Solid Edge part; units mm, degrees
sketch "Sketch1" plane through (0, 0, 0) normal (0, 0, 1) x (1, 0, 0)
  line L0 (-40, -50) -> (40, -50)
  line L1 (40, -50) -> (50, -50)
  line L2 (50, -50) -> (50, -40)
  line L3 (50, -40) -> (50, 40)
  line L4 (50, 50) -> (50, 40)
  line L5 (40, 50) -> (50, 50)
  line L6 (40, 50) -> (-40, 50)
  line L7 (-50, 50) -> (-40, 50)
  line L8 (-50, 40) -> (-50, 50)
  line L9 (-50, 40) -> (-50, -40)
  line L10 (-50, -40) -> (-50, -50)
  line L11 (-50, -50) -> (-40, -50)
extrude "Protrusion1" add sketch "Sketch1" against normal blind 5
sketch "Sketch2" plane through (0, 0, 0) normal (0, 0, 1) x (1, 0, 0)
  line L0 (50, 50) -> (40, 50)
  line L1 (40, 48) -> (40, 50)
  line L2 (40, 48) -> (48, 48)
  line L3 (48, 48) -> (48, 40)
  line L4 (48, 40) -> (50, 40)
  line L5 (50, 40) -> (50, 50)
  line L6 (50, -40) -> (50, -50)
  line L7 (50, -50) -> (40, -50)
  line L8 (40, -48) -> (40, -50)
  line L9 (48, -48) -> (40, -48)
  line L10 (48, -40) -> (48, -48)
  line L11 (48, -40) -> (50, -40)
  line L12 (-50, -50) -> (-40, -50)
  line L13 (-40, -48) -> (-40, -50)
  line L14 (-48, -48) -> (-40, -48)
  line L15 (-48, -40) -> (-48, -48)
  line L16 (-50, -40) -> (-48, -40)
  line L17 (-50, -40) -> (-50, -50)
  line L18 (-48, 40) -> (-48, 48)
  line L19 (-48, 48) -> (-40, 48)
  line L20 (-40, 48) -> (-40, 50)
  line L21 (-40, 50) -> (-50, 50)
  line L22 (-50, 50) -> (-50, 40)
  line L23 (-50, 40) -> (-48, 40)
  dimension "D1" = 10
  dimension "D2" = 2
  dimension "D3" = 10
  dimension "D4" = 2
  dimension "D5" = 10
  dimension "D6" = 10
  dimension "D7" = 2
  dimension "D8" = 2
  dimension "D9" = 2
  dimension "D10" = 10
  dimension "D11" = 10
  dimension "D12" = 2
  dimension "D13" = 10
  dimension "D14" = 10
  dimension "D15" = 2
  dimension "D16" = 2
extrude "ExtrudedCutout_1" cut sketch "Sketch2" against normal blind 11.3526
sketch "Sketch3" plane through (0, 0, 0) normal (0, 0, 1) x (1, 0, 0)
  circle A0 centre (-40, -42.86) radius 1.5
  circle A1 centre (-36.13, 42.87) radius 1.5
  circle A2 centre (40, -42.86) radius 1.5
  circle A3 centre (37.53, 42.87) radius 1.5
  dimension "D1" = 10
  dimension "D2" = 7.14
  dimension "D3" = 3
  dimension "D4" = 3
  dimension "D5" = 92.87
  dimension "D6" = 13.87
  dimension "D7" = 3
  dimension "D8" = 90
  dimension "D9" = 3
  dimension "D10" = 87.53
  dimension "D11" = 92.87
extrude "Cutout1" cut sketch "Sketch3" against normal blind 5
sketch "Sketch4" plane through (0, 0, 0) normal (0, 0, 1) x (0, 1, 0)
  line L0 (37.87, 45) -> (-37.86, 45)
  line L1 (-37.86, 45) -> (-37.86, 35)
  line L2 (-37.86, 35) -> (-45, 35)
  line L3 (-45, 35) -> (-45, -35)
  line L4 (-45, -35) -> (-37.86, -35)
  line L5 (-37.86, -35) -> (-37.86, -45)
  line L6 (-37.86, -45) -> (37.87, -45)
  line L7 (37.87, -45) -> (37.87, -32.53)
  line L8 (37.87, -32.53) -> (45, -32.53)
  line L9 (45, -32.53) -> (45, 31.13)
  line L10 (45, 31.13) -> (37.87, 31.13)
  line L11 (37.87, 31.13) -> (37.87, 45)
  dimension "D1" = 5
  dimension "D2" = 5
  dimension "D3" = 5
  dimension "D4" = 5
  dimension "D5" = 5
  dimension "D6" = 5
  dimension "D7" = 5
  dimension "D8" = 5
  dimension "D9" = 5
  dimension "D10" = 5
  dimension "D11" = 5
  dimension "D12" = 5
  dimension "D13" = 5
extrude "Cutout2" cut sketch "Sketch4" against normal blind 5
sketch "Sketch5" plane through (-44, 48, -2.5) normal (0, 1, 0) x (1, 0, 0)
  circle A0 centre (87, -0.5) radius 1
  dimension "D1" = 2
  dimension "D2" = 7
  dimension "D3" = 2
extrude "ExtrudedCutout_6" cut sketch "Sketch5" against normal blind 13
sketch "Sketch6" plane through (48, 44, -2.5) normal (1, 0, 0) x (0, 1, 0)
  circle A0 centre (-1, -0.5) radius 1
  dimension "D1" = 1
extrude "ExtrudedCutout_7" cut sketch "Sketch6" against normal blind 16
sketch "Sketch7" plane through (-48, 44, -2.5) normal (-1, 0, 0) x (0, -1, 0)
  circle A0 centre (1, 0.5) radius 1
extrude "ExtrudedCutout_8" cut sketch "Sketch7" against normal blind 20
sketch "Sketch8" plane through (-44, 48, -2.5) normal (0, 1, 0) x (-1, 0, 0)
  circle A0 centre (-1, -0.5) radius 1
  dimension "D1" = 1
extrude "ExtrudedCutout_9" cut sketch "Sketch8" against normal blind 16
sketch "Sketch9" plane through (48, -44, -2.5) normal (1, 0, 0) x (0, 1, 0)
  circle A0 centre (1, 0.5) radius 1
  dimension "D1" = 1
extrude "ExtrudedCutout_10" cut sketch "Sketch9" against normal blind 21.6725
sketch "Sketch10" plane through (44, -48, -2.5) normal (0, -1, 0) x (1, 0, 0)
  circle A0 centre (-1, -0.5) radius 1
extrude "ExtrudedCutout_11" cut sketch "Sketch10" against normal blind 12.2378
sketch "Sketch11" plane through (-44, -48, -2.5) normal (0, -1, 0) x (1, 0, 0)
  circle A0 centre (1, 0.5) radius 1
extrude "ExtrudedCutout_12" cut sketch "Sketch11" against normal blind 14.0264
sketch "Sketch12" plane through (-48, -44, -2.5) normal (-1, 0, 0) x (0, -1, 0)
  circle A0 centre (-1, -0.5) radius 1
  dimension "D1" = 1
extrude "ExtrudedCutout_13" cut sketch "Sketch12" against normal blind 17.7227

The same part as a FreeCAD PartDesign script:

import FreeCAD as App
import Part
import Sketcher

V = App.Vector

doc = App.newDocument("Part")
body = doc.addObject("PartDesign::Body", "Body")

sketch1 = doc.addObject("Sketcher::SketchObject", "Sketch")
body.addObject(sketch1)
sketch1.AttachmentSupport = (doc.XY_Plane, [""])
sketch1.MapMode = "FlatFace"
sketch1.addGeometry([
    Part.LineSegment(V(-50, -50, 0), V(50, -50, 0)),
    Part.LineSegment(V(50, -50, 0), V(50, 50, 0)),
    Part.LineSegment(V(50, 50, 0), V(-50, 50, 0)),
    Part.LineSegment(V(-50, 50, 0), V(-50, -50, 0)),
], False)
sketch1.addConstraint([
    Sketcher.Constraint("Coincident", 0, 2, 1, 1),
    Sketcher.Constraint("Coincident", 1, 2, 2, 1),
    Sketcher.Constraint("Coincident", 2, 2, 3, 1),
    Sketcher.Constraint("Coincident", 3, 2, 0, 1),
    Sketcher.Constraint("Horizontal", 0),
    Sketcher.Constraint("Vertical", 1),
    Sketcher.Constraint("Horizontal", 2),
    Sketcher.Constraint("Vertical", 3),
    Sketcher.Constraint("Symmetric", 0, 2, 2, 2, -1, 1),
    Sketcher.Constraint("Equal", 2, 1),
    Sketcher.Constraint("DistanceX", 0, 1, 0, 2, 100.0),
])
pad1 = doc.addObject("PartDesign::Pad", "Pad")
body.addObject(pad1)
pad1.Profile = sketch1
pad1.Length = 5
pad1.Reversed = True

sketch2 = doc.addObject("Sketcher::SketchObject", "Sketch001")
body.addObject(sketch2)
sketch2.AttachmentSupport = (doc.XY_Plane, [""])
sketch2.MapMode = "FlatFace"
sketch2.addGeometry([
    Part.LineSegment(V(50, 40, 0), V(50, 50, 0)),
    Part.LineSegment(V(50, 50, 0), V(40, 50, 0)),
    Part.LineSegment(V(40, 50, 0), V(40, 48, 0)),
    Part.LineSegment(V(40, 48, 0), V(48, 48, 0)),
    Part.LineSegment(V(48, 48, 0), V(48, 40, 0)),
    Part.LineSegment(V(48, 40, 0), V(50, 40, 0)),
    Part.LineSegment(V(50, -50, 0), V(50, -40, 0)),
    Part.LineSegment(V(50, -40, 0), V(48, -40, 0)),
    Part.LineSegment(V(48, -40, 0), V(48, -48, 0)),
    Part.LineSegment(V(48, -48, 0), V(40, -48, 0)),
    Part.LineSegment(V(40, -48, 0), V(40, -50, 0)),
    Part.LineSegment(V(40, -50, 0), V(50, -50, 0)),
    Part.LineSegment(V(-50, -40, 0), V(-50, -50, 0)),
    Part.LineSegment(V(-50, -50, 0), V(-40, -50, 0)),
    Part.LineSegment(V(-40, -50, 0), V(-40, -48, 0)),
    Part.LineSegment(V(-40, -48, 0), V(-48, -48, 0)),
    Part.LineSegment(V(-48, -48, 0), V(-48, -40, 0)),
    Part.LineSegment(V(-48, -40, 0), V(-50, -40, 0)),
    Part.LineSegment(V(-50, 40, 0), V(-48, 40, 0)),
    Part.LineSegment(V(-48, 40, 0), V(-48, 48, 0)),
    Part.LineSegment(V(-48, 48, 0), V(-40, 48, 0)),
    Part.LineSegment(V(-40, 48, 0), V(-40, 50, 0)),
    Part.LineSegment(V(-40, 50, 0), V(-50, 50, 0)),
    Part.LineSegment(V(-50, 50, 0), V(-50, 40, 0)),
], False)
sketch2.addConstraint([
    Sketcher.Constraint("Coincident", 0, 2, 1, 1),
    Sketcher.Constraint("Coincident", 1, 2, 2, 1),
    Sketcher.Constraint("Coincident", 2, 2, 3, 1),
    Sketcher.Constraint("Coincident", 3, 2, 4, 1),
    Sketcher.Constraint("Coincident", 4, 2, 5, 1),
    Sketcher.Constraint("Coincident", 5, 2, 0, 1),
    Sketcher.Constraint("Coincident", 6, 2, 7, 1),
    Sketcher.Constraint("Coincident", 7, 2, 8, 1),
    Sketcher.Constraint("Coincident", 8, 2, 9, 1),
    Sketcher.Constraint("Coincident", 9, 2, 10, 1),
    Sketcher.Constraint("Coincident", 10, 2, 11, 1),
    Sketcher.Constraint("Coincident", 11, 2, 6, 1),
    Sketcher.Constraint("Coincident", 12, 2, 13, 1),
    Sketcher.Constraint("Coincident", 13, 2, 14, 1),
    Sketcher.Constraint("Coincident", 14, 2, 15, 1),
    Sketcher.Constraint("Coincident", 15, 2, 16, 1),
    Sketcher.Constraint("Coincident", 16, 2, 17, 1),
    Sketcher.Constraint("Coincident", 17, 2, 12, 1),
    Sketcher.Constraint("Coincident", 18, 2, 19, 1),
    Sketcher.Constraint("Coincident", 19, 2, 20, 1),
    Sketcher.Constraint("Coincident", 20, 2, 21, 1),
    Sketcher.Constraint("Coincident", 21, 2, 22, 1),
    Sketcher.Constraint("Coincident", 22, 2, 23, 1),
    Sketcher.Constraint("Coincident", 23, 2, 18, 1),
    Sketcher.Constraint("Vertical", 0),
    Sketcher.Constraint("Horizontal", 1),
    Sketcher.Constraint("Vertical", 2),
    Sketcher.Constraint("Horizontal", 3),
    Sketcher.Constraint("Vertical", 4),
    Sketcher.Constraint("Horizontal", 5),
    Sketcher.Constraint("Vertical", 6),
    Sketcher.Constraint("Horizontal", 7),
    Sketcher.Constraint("Vertical", 8),
    Sketcher.Constraint("Horizontal", 9),
    Sketcher.Constraint("Vertical", 10),
    Sketcher.Constraint("Horizontal", 11),
    Sketcher.Constraint("Vertical", 12),
    Sketcher.Constraint("Horizontal", 13),
    Sketcher.Constraint("Vertical", 14),
    Sketcher.Constraint("Horizontal", 15),
    Sketcher.Constraint("Vertical", 16),
    Sketcher.Constraint("Horizontal", 17),
    Sketcher.Constraint("Horizontal", 18),
    Sketcher.Constraint("Vertical", 19),
    Sketcher.Constraint("Horizontal", 20),
    Sketcher.Constraint("Vertical", 21),
    Sketcher.Constraint("Horizontal", 22),
    Sketcher.Constraint("Vertical", 23),
    Sketcher.Constraint("Symmetric", 0, 2, 12, 2, -1, 1),
    Sketcher.Constraint("Symmetric", 2, 2, 14, 2, -1, 1),
    Sketcher.Constraint("Symmetric", 4, 2, 16, 2, -1, 1),
    Sketcher.Constraint("Symmetric", 7, 2, 18, 2, -1, 1),
    Sketcher.Constraint("Symmetric", 9, 2, 20, 2, -1, 1),
    Sketcher.Constraint("Symmetric", 11, 2, 22, 2, -1, 1),
    Sketcher.Constraint("Symmetric", 11, 2, 12, 2, -2),
    Sketcher.Constraint("Symmetric", 9, 2, 14, 2, -2),
    Sketcher.Constraint("Symmetric", 7, 2, 16, 2, -2),
    Sketcher.Constraint("Equal", 22, 0),
    Sketcher.Constraint("Equal", 18, 2),
    Sketcher.Constraint("DistanceX", -1, 1, 0, 2, 50.0),
    Sketcher.Constraint("DistanceY", -1, 1, 0, 2, 50.0),
    Sketcher.Constraint("DistanceX", -1, 1, 1, 2, 40.0),
    Sketcher.Constraint("DistanceY", -1, 1, 2, 2, 48.0),
])
pocket1 = doc.addObject("PartDesign::Pocket", "Pocket")
body.addObject(pocket1)
pocket1.Profile = sketch2
pocket1.Length = 11.3526

sketch3 = doc.addObject("Sketcher::SketchObject", "Sketch002")
body.addObject(sketch3)
sketch3.AttachmentSupport = (doc.XY_Plane, [""])
sketch3.MapMode = "FlatFace"
sketch3.addGeometry([
    Part.Circle(V(-40, -42.9, 0), V(0, 0, 1), 1.5),
    Part.Circle(V(-36.1, 42.9, 0), V(0, 0, 1), 1.5),
    Part.Circle(V(40, -42.9, 0), V(0, 0, 1), 1.5),
    Part.Circle(V(37.5, 42.9, 0), V(0, 0, 1), 1.5),
], False)
sketch3.addConstraint([
    Sketcher.Constraint("Equal", 0, 1),
    Sketcher.Constraint("Equal", 1, 2),
    Sketcher.Constraint("Equal", 2, 3),
    Sketcher.Constraint("Symmetric", 0, 3, 2, 3, -2),
    Sketcher.Constraint("Horizontal", 1, 3, 3, 3),
    Sketcher.Constraint("Diameter", 0, 3.0),
    Sketcher.Constraint("DistanceX", 0, 3, -1, 1, 40.0),
    Sketcher.Constraint("DistanceY", 0, 3, -1, 1, 42.86),
    Sketcher.Constraint("DistanceX", 1, 3, -1, 1, 36.13),
    Sketcher.Constraint("DistanceY", -1, 1, 1, 3, 42.87),
    Sketcher.Constraint("DistanceX", -1, 1, 3, 3, 37.53),
])
pocket2 = doc.addObject("PartDesign::Pocket", "Pocket001")
body.addObject(pocket2)
pocket2.Profile = sketch3
pocket2.Length = 5

sketch4 = doc.addObject("Sketcher::SketchObject", "Sketch003")
body.addObject(sketch4)
sketch4.AttachmentSupport = (doc.XY_Plane, [""])
sketch4.MapMode = "FlatFace"
sketch4.addGeometry([
    Part.LineSegment(V(-31, 38, 0), V(-45, 38, 0)),
    Part.LineSegment(V(-45, 38, 0), V(-45, -38, 0)),
    Part.LineSegment(V(-45, -38, 0), V(-35, -38, 0)),
    Part.LineSegment(V(-35, -38, 0), V(-35, -45, 0)),
    Part.LineSegment(V(-35, -45, 0), V(35, -45, 0)),
    Part.LineSegment(V(35, -45, 0), V(35, -38, 0)),
    Part.LineSegment(V(35, -38, 0), V(45, -38, 0)),
    Part.LineSegment(V(45, -38, 0), V(45, 38, 0)),
    Part.LineSegment(V(45, 38, 0), V(33, 38, 0)),
    Part.LineSegment(V(33, 38, 0), V(33, 45, 0)),
    Part.LineSegment(V(33, 45, 0), V(-31, 45, 0)),
    Part.LineSegment(V(-31, 45, 0), V(-31, 38, 0)),
], False)
sketch4.addConstraint([
    Sketcher.Constraint("Coincident", 0, 2, 1, 1),
    Sketcher.Constraint("Coincident", 1, 2, 2, 1),
    Sketcher.Constraint("Coincident", 2, 2, 3, 1),
    Sketcher.Constraint("Coincident", 3, 2, 4, 1),
    Sketcher.Constraint("Coincident", 4, 2, 5, 1),
    Sketcher.Constraint("Coincident", 5, 2, 6, 1),
    Sketcher.Constraint("Coincident", 6, 2, 7, 1),
    Sketcher.Constraint("Coincident", 7, 2, 8, 1),
    Sketcher.Constraint("Coincident", 8, 2, 9, 1),
    Sketcher.Constraint("Coincident", 9, 2, 10, 1),
    Sketcher.Constraint("Coincident", 10, 2, 11, 1),
    Sketcher.Constraint("Coincident", 11, 2, 0, 1),
    Sketcher.Constraint("Horizontal", 0),
    Sketcher.Constraint("Vertical", 1),
    Sketcher.Constraint("Horizontal", 2),
    Sketcher.Constraint("Vertical", 3),
    Sketcher.Constraint("Horizontal", 4),
    Sketcher.Constraint("Vertical", 5),
    Sketcher.Constraint("Horizontal", 6),
    Sketcher.Constraint("Vertical", 7),
    Sketcher.Constraint("Horizontal", 8),
    Sketcher.Constraint("Vertical", 9),
    Sketcher.Constraint("Horizontal", 10),
    Sketcher.Constraint("Vertical", 11),
    Sketcher.Constraint("Symmetric", 2, 2, 5, 2, -2),
    Sketcher.Constraint("Symmetric", 0, 2, 7, 2, -2),
    Sketcher.Constraint("DistanceX", 2, 1, 2, 2, 10.0),
    Sketcher.Constraint("DistanceX", 4, 1, 4, 2, 70.0),
    Sketcher.Constraint("DistanceY", 3, 2, -1, 1, 45.0),
    Sketcher.Constraint("DistanceY", -1, 1, 9, 2, 45.0),
    Sketcher.Constraint("DistanceX", 0, 2, 0, 1, 13.87),
    Sketcher.Constraint("DistanceX", 8, 2, 8, 1, 12.47),
    Sketcher.Constraint("DistanceY", 1, 2, 1, 1, 75.73),
    Sketcher.Constraint("DistanceY", 3, 2, 3, 1, 7.14),
])
pocket3 = doc.addObject("PartDesign::Pocket", "Pocket002")
body.addObject(pocket3)
pocket3.Profile = sketch4
pocket3.Length = 5

sketch5 = doc.addObject("Sketcher::SketchObject", "Sketch004")
body.addObject(sketch5)
sketch5.AttachmentSupport = (doc.XZ_Plane, [""])
sketch5.MapMode = "FlatFace"
sketch5.AttachmentOffset = App.Placement(V(0, 0, -48), App.Rotation())
sketch5.addGeometry(Part.Circle(V(43, -2, 0), V(0, 0, 1), 1), False)
sketch5.addConstraint([
    Sketcher.Constraint("Diameter", 0, 2.0),
    Sketcher.Constraint("DistanceX", -1, 1, 0, 3, 43.0),
    Sketcher.Constraint("DistanceY", 0, 3, -1, 1, 2.0),
])
pocket4 = doc.addObject("PartDesign::Pocket", "Pocket003")
body.addObject(pocket4)
pocket4.Profile = sketch5
pocket4.Length = 13
pocket4.Reversed = True

sketch6 = doc.addObject("Sketcher::SketchObject", "Sketch005")
body.addObject(sketch6)
sketch6.AttachmentSupport = (doc.YZ_Plane, [""])
sketch6.MapMode = "FlatFace"
sketch6.AttachmentOffset = App.Placement(V(0, 0, 48), App.Rotation())
sketch6.addGeometry(Part.Circle(V(43, -3, 0), V(0, 0, 1), 1), False)
sketch6.addConstraint([
    Sketcher.Constraint("Diameter", 0, 2.0),
    Sketcher.Constraint("DistanceX", -1, 1, 0, 3, 43.0),
    Sketcher.Constraint("DistanceY", 0, 3, -1, 1, 3.0),
])
pocket5 = doc.addObject("PartDesign::Pocket", "Pocket004")
body.addObject(pocket5)
pocket5.Profile = sketch6
pocket5.Length = 16

sketch7 = doc.addObject("Sketcher::SketchObject", "Sketch006")
body.addObject(sketch7)
sketch7.AttachmentSupport = (doc.YZ_Plane, [""])
sketch7.MapMode = "FlatFace"
sketch7.AttachmentOffset = App.Placement(V(0, 0, -48), App.Rotation())
sketch7.addGeometry(Part.Circle(V(43, -2, 0), V(0, 0, 1), 1), False)
sketch7.addConstraint([
    Sketcher.Constraint("Diameter", 0, 2.0),
    Sketcher.Constraint("DistanceX", -1, 1, 0, 3, 43.0),
    Sketcher.Constraint("DistanceY", 0, 3, -1, 1, 2.0),
])
pocket6 = doc.addObject("PartDesign::Pocket", "Pocket005")
body.addObject(pocket6)
pocket6.Profile = sketch7
pocket6.Length = 20
pocket6.Reversed = True

sketch8 = doc.addObject("Sketcher::SketchObject", "Sketch007")
body.addObject(sketch8)
sketch8.AttachmentSupport = (doc.XZ_Plane, [""])
sketch8.MapMode = "FlatFace"
sketch8.AttachmentOffset = App.Placement(V(0, 0, -48), App.Rotation())
sketch8.addGeometry(Part.Circle(V(-43, -3, 0), V(0, 0, 1), 1), False)
sketch8.addConstraint([
    Sketcher.Constraint("Diameter", 0, 2.0),
    Sketcher.Constraint("DistanceX", 0, 3, -1, 1, 43.0),
    Sketcher.Constraint("DistanceY", 0, 3, -1, 1, 3.0),
])
pocket7 = doc.addObject("PartDesign::Pocket", "Pocket006")
body.addObject(pocket7)
pocket7.Profile = sketch8
pocket7.Length = 16
pocket7.Reversed = True

sketch9 = doc.addObject("Sketcher::SketchObject", "Sketch008")
body.addObject(sketch9)
sketch9.AttachmentSupport = (doc.YZ_Plane, [""])
sketch9.MapMode = "FlatFace"
sketch9.AttachmentOffset = App.Placement(V(0, 0, 48), App.Rotation())
sketch9.addGeometry(Part.Circle(V(-43, -2, 0), V(0, 0, 1), 1), False)
sketch9.addConstraint([
    Sketcher.Constraint("Diameter", 0, 2.0),
    Sketcher.Constraint("DistanceX", 0, 3, -1, 1, 43.0),
    Sketcher.Constraint("DistanceY", 0, 3, -1, 1, 2.0),
])
pocket8 = doc.addObject("PartDesign::Pocket", "Pocket007")
body.addObject(pocket8)
pocket8.Profile = sketch9
pocket8.Length = 21.6725

sketch10 = doc.addObject("Sketcher::SketchObject", "Sketch009")
body.addObject(sketch10)
sketch10.AttachmentSupport = (doc.XZ_Plane, [""])
sketch10.MapMode = "FlatFace"
sketch10.AttachmentOffset = App.Placement(V(0, 0, 48), App.Rotation())
sketch10.addGeometry(Part.Circle(V(43, -3, 0), V(0, 0, 1), 1), False)
sketch10.addConstraint([
    Sketcher.Constraint("Diameter", 0, 2.0),
    Sketcher.Constraint("DistanceX", -1, 1, 0, 3, 43.0),
    Sketcher.Constraint("DistanceY", 0, 3, -1, 1, 3.0),
])
pocket9 = doc.addObject("PartDesign::Pocket", "Pocket008")
body.addObject(pocket9)
pocket9.Profile = sketch10
pocket9.Length = 12.2378

sketch11 = doc.addObject("Sketcher::SketchObject", "Sketch010")
body.addObject(sketch11)
sketch11.AttachmentSupport = (doc.XZ_Plane, [""])
sketch11.MapMode = "FlatFace"
sketch11.AttachmentOffset = App.Placement(V(0, 0, 48), App.Rotation())
sketch11.addGeometry(Part.Circle(V(-43, -2, 0), V(0, 0, 1), 1), False)
sketch11.addConstraint([
    Sketcher.Constraint("Diameter", 0, 2.0),
    Sketcher.Constraint("DistanceX", 0, 3, -1, 1, 43.0),
    Sketcher.Constraint("DistanceY", 0, 3, -1, 1, 2.0),
])
pocket10 = doc.addObject("PartDesign::Pocket", "Pocket009")
body.addObject(pocket10)
pocket10.Profile = sketch11
pocket10.Length = 14.0264

sketch12 = doc.addObject("Sketcher::SketchObject", "Sketch011")
body.addObject(sketch12)
sketch12.AttachmentSupport = (doc.YZ_Plane, [""])
sketch12.MapMode = "FlatFace"
sketch12.AttachmentOffset = App.Placement(V(0, 0, -48), App.Rotation())
sketch12.addGeometry(Part.Circle(V(-43, -3, 0), V(0, 0, 1), 1), False)
sketch12.addConstraint([
    Sketcher.Constraint("Diameter", 0, 2.0),
    Sketcher.Constraint("DistanceX", 0, 3, -1, 1, 43.0),
    Sketcher.Constraint("DistanceY", 0, 3, -1, 1, 3.0),
])
pocket11 = doc.addObject("PartDesign::Pocket", "Pocket010")
body.addObject(pocket11)
pocket11.Profile = sketch12
pocket11.Length = 17.7227
pocket11.Reversed = True

doc.recompute()
